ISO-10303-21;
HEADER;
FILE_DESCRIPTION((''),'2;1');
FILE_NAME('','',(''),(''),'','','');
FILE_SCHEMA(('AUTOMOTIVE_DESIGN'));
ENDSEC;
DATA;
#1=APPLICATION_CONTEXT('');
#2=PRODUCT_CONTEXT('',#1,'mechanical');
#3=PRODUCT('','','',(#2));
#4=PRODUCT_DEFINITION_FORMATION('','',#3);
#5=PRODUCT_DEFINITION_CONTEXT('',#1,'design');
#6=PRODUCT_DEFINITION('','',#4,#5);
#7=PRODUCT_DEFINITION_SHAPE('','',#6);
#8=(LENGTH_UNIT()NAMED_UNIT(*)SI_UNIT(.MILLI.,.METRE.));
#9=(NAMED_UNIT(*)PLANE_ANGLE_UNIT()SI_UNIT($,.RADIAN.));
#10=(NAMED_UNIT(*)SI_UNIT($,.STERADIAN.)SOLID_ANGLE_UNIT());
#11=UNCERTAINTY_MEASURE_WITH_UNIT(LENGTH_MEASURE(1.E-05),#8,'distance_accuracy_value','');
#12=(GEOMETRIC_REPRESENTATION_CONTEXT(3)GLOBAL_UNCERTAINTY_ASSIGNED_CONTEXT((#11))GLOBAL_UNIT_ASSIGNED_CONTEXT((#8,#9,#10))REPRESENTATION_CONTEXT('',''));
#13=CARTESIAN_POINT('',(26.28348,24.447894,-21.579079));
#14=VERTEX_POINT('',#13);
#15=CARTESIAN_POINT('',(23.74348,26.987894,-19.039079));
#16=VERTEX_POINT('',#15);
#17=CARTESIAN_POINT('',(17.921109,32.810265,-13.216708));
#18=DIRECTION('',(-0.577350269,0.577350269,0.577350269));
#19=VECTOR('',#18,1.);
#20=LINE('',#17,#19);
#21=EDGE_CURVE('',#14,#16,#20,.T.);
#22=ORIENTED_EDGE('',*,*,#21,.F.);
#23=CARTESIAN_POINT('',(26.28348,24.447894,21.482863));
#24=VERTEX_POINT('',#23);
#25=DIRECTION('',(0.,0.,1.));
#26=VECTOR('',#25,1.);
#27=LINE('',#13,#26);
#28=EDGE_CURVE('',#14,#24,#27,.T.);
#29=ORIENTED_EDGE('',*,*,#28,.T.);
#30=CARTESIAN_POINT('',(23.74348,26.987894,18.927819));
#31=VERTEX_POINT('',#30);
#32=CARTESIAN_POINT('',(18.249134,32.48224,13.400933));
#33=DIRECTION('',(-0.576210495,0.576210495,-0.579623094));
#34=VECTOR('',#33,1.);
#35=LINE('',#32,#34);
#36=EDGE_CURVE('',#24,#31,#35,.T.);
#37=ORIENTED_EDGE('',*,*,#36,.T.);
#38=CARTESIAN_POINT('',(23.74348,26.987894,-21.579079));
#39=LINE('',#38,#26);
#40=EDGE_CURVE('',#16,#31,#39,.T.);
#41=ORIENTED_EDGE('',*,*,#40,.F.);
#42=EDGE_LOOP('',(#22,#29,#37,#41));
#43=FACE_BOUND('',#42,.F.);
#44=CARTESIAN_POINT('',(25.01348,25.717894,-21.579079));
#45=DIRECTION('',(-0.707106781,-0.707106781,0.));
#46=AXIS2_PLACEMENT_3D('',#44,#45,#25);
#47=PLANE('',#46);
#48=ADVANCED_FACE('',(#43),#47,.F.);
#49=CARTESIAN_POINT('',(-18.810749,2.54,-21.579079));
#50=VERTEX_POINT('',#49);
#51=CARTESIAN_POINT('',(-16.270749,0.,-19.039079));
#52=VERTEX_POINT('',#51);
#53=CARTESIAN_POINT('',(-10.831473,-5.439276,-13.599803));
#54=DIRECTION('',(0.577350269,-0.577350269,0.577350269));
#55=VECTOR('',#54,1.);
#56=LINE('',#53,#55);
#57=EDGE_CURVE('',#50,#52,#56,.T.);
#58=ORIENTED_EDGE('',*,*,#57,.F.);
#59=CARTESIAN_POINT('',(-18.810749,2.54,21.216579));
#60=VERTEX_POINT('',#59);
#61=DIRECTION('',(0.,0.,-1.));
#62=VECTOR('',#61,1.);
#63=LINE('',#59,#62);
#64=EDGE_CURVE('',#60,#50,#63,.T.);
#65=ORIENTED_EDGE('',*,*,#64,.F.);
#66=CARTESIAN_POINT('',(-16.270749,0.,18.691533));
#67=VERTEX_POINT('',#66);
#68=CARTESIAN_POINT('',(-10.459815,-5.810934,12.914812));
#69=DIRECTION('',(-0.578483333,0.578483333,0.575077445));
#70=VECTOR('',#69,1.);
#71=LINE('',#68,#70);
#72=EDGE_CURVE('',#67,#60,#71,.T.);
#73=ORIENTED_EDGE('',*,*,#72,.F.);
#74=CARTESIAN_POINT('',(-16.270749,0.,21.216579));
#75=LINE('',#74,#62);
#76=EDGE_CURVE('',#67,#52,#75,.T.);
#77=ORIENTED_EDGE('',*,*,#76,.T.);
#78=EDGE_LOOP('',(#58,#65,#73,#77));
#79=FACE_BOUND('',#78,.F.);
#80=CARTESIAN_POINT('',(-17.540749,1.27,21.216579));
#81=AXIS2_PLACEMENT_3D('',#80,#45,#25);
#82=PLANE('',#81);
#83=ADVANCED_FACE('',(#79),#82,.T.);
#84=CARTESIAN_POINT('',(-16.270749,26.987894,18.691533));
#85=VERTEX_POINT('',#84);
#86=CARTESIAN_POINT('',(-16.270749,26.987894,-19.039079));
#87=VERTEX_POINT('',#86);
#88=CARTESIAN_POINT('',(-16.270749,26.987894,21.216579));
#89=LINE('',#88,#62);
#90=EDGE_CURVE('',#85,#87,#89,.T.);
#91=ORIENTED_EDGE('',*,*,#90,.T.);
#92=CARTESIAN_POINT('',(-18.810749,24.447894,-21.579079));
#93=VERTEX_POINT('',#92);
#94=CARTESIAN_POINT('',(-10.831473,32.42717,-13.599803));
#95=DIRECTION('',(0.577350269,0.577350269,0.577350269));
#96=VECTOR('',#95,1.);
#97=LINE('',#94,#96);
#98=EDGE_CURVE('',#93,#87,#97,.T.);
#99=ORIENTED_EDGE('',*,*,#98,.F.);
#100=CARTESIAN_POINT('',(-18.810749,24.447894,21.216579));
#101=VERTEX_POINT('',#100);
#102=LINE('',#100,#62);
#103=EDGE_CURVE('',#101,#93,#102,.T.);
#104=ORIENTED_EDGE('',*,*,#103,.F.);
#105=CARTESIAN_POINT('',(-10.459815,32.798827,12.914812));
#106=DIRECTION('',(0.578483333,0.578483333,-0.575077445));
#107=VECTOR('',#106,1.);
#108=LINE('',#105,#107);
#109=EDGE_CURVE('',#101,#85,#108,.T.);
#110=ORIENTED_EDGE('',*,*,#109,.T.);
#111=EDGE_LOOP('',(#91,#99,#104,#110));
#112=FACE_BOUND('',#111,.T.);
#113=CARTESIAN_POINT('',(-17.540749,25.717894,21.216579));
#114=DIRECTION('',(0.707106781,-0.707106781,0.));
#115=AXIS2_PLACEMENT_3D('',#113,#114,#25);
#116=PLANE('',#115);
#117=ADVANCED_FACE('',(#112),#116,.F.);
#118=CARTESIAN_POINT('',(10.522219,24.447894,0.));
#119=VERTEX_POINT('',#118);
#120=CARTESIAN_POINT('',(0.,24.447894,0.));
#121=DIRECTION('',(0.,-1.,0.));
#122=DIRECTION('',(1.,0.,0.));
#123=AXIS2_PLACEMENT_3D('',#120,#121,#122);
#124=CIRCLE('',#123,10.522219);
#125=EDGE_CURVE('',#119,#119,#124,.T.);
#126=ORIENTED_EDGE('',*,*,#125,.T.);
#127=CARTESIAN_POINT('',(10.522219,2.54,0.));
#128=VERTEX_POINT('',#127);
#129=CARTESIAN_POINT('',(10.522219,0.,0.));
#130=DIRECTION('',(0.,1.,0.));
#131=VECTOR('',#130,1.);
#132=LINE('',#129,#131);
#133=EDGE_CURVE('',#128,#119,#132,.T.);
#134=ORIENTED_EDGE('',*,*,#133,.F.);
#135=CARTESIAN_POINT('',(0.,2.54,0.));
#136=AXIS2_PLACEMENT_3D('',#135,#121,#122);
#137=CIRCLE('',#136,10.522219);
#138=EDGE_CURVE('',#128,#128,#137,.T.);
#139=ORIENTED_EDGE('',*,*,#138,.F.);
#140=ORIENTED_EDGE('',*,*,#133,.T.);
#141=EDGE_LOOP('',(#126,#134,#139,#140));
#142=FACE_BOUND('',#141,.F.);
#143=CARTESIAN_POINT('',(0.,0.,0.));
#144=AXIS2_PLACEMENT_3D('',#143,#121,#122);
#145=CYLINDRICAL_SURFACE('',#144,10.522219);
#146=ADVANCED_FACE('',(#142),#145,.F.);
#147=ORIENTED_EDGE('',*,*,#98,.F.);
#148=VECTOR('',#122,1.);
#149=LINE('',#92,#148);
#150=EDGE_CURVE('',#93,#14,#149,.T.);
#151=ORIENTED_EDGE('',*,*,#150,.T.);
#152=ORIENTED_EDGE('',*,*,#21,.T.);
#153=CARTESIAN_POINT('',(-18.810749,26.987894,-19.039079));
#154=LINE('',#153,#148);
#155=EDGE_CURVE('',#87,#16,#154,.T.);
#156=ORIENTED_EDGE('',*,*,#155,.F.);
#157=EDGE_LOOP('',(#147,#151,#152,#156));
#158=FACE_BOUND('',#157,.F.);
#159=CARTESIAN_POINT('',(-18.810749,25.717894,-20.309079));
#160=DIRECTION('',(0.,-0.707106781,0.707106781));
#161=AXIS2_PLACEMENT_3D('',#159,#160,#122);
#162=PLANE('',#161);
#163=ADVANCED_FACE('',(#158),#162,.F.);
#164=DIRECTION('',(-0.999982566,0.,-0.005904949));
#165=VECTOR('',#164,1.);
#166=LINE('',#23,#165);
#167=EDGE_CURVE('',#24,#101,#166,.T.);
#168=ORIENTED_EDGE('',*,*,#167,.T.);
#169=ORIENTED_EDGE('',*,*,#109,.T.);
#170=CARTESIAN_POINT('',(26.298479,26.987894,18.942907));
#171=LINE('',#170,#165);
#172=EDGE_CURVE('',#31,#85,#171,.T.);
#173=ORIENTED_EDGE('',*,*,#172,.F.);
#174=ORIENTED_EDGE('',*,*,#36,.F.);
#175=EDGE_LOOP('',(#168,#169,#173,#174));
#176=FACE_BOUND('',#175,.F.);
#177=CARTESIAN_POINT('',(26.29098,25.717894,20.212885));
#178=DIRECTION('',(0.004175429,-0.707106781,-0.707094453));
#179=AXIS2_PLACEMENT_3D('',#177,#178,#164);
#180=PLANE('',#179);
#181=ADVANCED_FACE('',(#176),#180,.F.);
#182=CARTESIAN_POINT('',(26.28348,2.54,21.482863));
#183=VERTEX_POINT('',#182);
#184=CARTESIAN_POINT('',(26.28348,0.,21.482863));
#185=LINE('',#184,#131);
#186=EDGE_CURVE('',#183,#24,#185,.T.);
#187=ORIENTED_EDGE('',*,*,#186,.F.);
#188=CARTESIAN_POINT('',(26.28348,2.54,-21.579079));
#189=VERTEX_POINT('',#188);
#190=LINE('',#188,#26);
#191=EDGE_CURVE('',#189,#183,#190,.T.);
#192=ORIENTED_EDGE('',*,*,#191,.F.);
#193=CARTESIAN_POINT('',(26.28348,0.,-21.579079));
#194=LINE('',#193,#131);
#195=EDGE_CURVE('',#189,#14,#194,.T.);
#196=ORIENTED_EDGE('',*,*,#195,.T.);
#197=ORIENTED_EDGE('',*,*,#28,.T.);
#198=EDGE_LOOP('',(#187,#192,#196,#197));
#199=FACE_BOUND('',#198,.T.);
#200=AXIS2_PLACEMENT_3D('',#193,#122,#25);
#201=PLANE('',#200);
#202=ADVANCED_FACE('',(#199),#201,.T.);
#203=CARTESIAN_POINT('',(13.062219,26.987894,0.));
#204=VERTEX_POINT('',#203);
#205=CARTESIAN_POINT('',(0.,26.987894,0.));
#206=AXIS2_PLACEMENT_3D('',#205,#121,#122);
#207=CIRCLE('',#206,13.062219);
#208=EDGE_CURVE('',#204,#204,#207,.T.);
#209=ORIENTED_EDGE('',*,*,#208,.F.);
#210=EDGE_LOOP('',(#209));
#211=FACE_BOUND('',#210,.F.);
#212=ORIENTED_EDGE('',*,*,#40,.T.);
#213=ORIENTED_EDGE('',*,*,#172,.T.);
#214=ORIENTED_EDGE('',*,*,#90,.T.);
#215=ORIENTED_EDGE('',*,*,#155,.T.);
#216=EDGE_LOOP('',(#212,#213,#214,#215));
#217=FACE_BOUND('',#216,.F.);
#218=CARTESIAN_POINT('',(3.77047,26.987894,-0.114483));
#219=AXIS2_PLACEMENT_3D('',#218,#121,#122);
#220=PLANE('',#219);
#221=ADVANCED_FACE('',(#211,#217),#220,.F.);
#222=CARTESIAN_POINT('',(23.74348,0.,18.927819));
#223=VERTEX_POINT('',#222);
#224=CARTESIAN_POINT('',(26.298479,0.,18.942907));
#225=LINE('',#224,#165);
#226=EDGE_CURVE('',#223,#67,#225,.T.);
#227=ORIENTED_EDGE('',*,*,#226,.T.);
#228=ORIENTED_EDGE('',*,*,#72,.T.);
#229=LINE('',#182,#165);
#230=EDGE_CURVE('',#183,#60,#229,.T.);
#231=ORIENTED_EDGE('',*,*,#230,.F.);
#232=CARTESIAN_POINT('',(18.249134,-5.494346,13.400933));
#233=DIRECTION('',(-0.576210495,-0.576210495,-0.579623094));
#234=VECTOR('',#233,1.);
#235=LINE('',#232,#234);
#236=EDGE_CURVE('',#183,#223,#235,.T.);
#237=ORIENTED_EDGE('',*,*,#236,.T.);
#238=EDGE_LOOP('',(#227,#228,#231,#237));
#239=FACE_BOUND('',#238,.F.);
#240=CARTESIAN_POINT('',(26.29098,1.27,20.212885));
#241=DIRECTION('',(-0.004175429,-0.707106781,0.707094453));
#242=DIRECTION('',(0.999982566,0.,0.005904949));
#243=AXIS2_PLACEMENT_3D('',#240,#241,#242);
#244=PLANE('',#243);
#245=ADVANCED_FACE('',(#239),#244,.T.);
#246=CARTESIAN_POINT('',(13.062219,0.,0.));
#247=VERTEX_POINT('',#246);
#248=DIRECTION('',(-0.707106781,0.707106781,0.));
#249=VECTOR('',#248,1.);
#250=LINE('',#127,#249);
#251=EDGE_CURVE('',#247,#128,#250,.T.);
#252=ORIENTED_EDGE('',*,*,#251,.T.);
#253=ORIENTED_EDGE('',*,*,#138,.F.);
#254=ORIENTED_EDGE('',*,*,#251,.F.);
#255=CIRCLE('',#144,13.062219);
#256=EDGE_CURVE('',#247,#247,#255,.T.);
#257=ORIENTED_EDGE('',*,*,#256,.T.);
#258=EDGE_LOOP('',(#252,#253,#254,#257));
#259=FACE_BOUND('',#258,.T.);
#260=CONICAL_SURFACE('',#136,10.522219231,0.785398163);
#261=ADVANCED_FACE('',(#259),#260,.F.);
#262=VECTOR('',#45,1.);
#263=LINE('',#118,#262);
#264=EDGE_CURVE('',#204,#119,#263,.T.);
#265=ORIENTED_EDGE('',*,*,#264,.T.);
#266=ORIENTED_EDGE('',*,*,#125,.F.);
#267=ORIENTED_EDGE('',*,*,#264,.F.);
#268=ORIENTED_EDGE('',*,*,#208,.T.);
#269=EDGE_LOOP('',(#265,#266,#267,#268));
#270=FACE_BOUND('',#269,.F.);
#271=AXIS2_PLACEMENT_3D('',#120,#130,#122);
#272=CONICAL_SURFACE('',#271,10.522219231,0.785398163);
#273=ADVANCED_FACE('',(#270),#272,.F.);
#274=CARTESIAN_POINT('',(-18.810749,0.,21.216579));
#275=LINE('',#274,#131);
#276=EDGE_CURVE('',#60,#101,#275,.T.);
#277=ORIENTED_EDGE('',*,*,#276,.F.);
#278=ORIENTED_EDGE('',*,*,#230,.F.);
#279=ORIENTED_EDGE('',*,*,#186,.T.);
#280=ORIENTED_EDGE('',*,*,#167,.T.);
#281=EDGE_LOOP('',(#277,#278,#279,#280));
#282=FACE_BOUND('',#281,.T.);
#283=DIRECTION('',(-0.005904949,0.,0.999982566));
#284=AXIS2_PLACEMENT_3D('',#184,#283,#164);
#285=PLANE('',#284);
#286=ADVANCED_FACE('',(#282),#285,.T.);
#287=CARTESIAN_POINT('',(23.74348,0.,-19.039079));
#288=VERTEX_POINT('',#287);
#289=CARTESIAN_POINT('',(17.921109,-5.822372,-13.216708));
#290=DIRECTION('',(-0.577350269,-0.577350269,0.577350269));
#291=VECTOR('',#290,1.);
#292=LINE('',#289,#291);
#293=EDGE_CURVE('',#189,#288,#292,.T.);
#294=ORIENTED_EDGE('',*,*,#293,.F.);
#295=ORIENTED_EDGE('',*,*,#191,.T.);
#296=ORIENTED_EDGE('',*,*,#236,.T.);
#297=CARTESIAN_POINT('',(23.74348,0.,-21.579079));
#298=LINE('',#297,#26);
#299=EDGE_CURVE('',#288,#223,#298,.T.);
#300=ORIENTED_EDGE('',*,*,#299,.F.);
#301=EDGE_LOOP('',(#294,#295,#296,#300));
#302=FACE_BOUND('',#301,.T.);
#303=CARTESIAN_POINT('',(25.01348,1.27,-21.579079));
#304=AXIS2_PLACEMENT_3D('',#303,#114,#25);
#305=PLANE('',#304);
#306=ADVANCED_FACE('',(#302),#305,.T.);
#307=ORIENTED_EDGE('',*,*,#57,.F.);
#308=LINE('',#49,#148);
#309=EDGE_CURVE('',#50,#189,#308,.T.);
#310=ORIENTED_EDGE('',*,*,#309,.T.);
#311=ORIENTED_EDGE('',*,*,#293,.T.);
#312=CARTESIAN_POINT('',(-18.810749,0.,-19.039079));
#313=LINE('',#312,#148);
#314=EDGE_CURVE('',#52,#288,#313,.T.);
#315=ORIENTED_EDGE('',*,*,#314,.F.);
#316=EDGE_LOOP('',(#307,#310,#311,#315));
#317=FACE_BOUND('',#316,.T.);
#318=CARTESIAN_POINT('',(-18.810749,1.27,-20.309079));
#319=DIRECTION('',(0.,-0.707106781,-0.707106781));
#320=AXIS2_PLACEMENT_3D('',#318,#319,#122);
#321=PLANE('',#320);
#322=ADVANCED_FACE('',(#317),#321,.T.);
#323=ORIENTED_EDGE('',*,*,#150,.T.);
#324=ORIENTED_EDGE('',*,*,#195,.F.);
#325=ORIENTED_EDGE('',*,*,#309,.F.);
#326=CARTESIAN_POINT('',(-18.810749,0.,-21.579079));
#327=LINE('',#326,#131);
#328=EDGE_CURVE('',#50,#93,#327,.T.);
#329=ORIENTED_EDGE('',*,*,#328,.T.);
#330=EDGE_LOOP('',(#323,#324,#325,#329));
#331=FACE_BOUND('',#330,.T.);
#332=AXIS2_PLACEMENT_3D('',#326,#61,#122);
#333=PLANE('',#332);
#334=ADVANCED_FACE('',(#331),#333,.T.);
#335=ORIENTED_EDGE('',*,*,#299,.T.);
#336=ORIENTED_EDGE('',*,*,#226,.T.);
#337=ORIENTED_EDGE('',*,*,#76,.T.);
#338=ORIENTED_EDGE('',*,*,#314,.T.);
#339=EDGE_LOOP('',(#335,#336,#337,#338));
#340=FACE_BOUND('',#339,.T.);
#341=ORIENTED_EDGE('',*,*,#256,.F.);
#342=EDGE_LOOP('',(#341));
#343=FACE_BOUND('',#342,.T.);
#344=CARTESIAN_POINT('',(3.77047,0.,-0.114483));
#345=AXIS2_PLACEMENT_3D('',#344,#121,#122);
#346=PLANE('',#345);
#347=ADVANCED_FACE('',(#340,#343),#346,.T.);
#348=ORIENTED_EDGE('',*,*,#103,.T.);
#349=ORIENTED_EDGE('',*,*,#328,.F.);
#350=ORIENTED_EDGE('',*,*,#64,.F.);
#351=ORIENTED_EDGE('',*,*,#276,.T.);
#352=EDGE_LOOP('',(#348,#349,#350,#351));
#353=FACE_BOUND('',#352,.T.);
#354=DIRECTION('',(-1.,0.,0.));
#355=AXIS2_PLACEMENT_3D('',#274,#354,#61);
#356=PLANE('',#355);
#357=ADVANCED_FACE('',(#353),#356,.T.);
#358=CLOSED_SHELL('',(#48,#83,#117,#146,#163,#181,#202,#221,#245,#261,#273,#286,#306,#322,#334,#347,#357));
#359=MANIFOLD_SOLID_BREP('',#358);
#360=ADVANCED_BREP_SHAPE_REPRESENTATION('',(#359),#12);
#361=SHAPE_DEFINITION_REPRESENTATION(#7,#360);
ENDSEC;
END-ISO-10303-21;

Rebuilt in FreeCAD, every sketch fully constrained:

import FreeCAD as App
import Part
import Sketcher
Q = App.Units.Quantity


def edges_at(feature, points):
    """Names of the edges that pass closest to the given points."""
    edges = feature.Shape.Edges
    near = lambda p: min(range(len(edges)), key=lambda i: edges[i].distToShape(Part.Vertex(*p))[0])
    return sorted({f"Edge{near(p) + 1}" for p in points})


def add_polygon(sketch, points):
    """Adds a closed chain of lines whose ends are joined by coincident constraints."""
    first, n = sketch.GeometryCount, len(points)
    for a, b in zip(points, points[1:] + points[:1]):
        sketch.addGeometry(Part.LineSegment(App.Vector(*a, 0), App.Vector(*b, 0)), False)
    for i in range(n):
        sketch.addConstraint(Sketcher.Constraint("Coincident", first + i, 2, first + (i + 1) % n, 1))

doc = App.newDocument("Part")
body = doc.addObject("PartDesign::Body", "Body")

sketch1 = body.newObject("Sketcher::SketchObject", "Sketch")
sketch1.AttachmentSupport = (doc.getObject("XZ_Plane"), [""])
sketch1.MapMode = "FlatFace"
add_polygon(sketch1, [(26, -22), (26, 21), (-19, 21), (-19, -22)])
sketch1.addConstraint(Sketcher.Constraint("Vertical", 0))
sketch1.addConstraint(Sketcher.Constraint("Vertical", 2))
sketch1.addConstraint(Sketcher.Constraint("Horizontal", 3))
sketch1.addConstraint(Sketcher.Constraint("DistanceX", 3, 1, 3, 2, Q("45.094229 mm")))
sketch1.addConstraint(Sketcher.Constraint("DistanceY", 0, 1, 0, 2, Q("43.061942 mm")))
sketch1.addConstraint(Sketcher.Constraint("DistanceY", 2, 2, 2, 1, Q("42.795658 mm")))
sketch1.addConstraint(Sketcher.Constraint("DistanceX", -1, 1, 0, 2, Q("26.28348 mm")))
sketch1.addConstraint(Sketcher.Constraint("DistanceY", -1, 1, 1, 2, Q("21.216579 mm")))
pad1 = body.newObject("PartDesign::Pad", "Pad")
pad1.Profile = sketch1
pad1.Length = 26.987894
pad1.Reversed = True

sketch2 = body.newObject("Sketcher::SketchObject", "Sketch001")
sketch2.AttachmentSupport = (doc.getObject("XZ_Plane"), [""])
sketch2.MapMode = "FlatFace"
sketch2.addGeometry(Part.Circle(App.Vector(0, 0, 0), App.Vector(0, 0, 1), 11), False)
sketch2.addConstraint(Sketcher.Constraint("Coincident", 0, 3, -1, 1))
sketch2.addConstraint(Sketcher.Constraint("Diameter", 0, Q("21.044438 mm")))
pocket1 = body.newObject("PartDesign::Pocket", "Pocket")
pocket1.Profile = sketch2
pocket1.Type = "ThroughAll"
doc.recompute()

chamfer = body.newObject("PartDesign::Chamfer", "Chamfer")
chamfer.Base = (pocket1, edges_at(pocket1, [
    (26.283, 26.988, -0.048),
    (3.736, 26.988, -21.579),
    (3.736, 26.988, 21.35),
    (-18.811, 26.988, -0.181),
    (-10.522, 26.988, 0),
]))
chamfer.Size = Q("0.1 in")
doc.recompute()

chamfer2 = body.newObject("PartDesign::Chamfer", "Chamfer001")
chamfer2.Base = (chamfer, edges_at(chamfer, [
    (26.283, 0, -0.048),
    (3.736, 0, -21.579),
    (3.736, 0, 21.35),
    (-18.811, 0, -0.181),
    (-10.522, 0, 0),
]))
chamfer2.Size = Q("0.1 in")

doc.recompute()
